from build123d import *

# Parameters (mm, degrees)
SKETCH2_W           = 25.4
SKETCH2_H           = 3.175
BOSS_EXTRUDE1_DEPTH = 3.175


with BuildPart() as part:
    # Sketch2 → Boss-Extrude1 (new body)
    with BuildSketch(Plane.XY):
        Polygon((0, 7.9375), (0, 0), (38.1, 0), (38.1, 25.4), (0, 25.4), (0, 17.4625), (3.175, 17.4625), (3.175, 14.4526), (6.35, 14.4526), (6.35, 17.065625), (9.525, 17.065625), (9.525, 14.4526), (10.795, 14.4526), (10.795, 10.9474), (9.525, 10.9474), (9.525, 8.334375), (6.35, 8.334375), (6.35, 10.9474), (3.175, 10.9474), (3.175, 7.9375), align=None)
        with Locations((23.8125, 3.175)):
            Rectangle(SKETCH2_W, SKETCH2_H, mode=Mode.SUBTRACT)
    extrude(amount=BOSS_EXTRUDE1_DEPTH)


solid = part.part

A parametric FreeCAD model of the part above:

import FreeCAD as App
import Part
import Sketcher
from FreeCAD import Vector
Q = App.Units.Quantity


def add_polygon(sketch, points):
    """Adds a closed chain of lines whose ends are joined by coincident constraints."""
    first, n = sketch.GeometryCount, len(points)
    for a, b in zip(points, points[1:] + points[:1]):
        sketch.addGeometry(Part.LineSegment(App.Vector(*a, 0), App.Vector(*b, 0)), False)
    for i in range(n):
        sketch.addConstraint(Sketcher.Constraint("Coincident", first + i, 2, first + (i + 1) % n, 1))

doc = App.newDocument("Part")
params = doc.addObject("Spreadsheet::Sheet", "Params")
for row, (alias, value) in enumerate([
    ("sketch1_width", "1 in"),
    ("sketch1_width2", "1.5 in"),
    ("sketch1_width3", "0.05 in"),
    ("sketch1_height", "0.3125 in"),
    ("sketch1_height2", "0.138 in"),
    ("pad1_length", "0.125 in"),
], start=1):
    params.set(f"A{row}", alias)
    params.set(f"B{row}", "=" + value)
    params.setAlias(f"B{row}", alias)

body = doc.addObject("PartDesign::Body", "Body")

sketch1 = body.newObject("Sketcher::SketchObject", "Sketch")
sketch1.AttachmentSupport = (doc.getObject("XY_Plane"), [""])
sketch1.MapMode = "FlatFace"
add_polygon(sketch1, [(0, 7.9), (0, 0), (38.1, 0), (38.1, 25.4), (0, 25.4), (0, 17.5), (3.2, 17.5), (3.2, 14.5), (6.3, 14.5), (6.3, 17.1), (9.5, 17.1), (9.5, 14.5), (10.8, 14.5), (10.8, 10.9), (9.5, 10.9), (9.5, 8.3), (6.3, 8.3), (6.3, 10.9), (3.2, 10.9), (3.2, 7.9)])
add_polygon(sketch1, [(36.5, 1.6), (11.1, 1.6), (11.1, 4.8), (36.5, 4.8)])
sketch1.addConstraint([
    Sketcher.Constraint("Vertical", 0),
    Sketcher.Constraint("Horizontal", 1),
    Sketcher.Constraint("Vertical", 2),
    Sketcher.Constraint("Horizontal", 3),
    Sketcher.Constraint("Vertical", 4),
    Sketcher.Constraint("Horizontal", 5),
    Sketcher.Constraint("Vertical", 6),
    Sketcher.Constraint("Horizontal", 7),
    Sketcher.Constraint("Vertical", 8),
    Sketcher.Constraint("Horizontal", 9),
    Sketcher.Constraint("Vertical", 10),
    Sketcher.Constraint("Horizontal", 11),
    Sketcher.Constraint("Vertical", 12),
    Sketcher.Constraint("Horizontal", 13),
    Sketcher.Constraint("Vertical", 14),
    Sketcher.Constraint("Horizontal", 15),
    Sketcher.Constraint("Vertical", 16),
    Sketcher.Constraint("Horizontal", 17),
    Sketcher.Constraint("Vertical", 18),
    Sketcher.Constraint("Horizontal", 19),
    Sketcher.Constraint("Horizontal", 20),
    Sketcher.Constraint("Vertical", 21),
    Sketcher.Constraint("Horizontal", 22),
    Sketcher.Constraint("Vertical", 23),
    Sketcher.Constraint("Coincident", 0, 2, -1, 1),
    Sketcher.Constraint("PointOnObject", 3, 2, -2),
    Sketcher.Constraint("Horizontal", 7, 2, 10, 2),
    Sketcher.Constraint("Horizontal", 13, 2, 16, 2),
    Sketcher.Constraint("Vertical", 10, 2, 13, 2),
    Sketcher.Constraint("Vertical", 8, 2, 15, 2),
    Sketcher.Constraint("Vertical", 6, 2, 17, 2),
    Sketcher.Constraint("Equal", 5, 7),
    Sketcher.Constraint("Equal", 7, 9),
    Sketcher.Constraint("Equal", 22, 2),
    Sketcher.Constraint("Equal", 0, 4),
    Sketcher.Constraint("Equal", 10, 14),
    Sketcher.Constraint("Equal", 6, 18),
    Sketcher.Constraint("Equal", 19, 21),
    Sketcher.Constraint("DistanceX", 20, 2, 20, 1, Q("1 in")),
    Sketcher.Constraint("DistanceX", 1, 1, 1, 2, Q("1.5 in")),
    Sketcher.Constraint("DistanceX", 11, 1, 11, 2, Q("0.05 in")),
    Sketcher.Constraint("DistanceX", 6, 2, 11, 2, Q("0.3 in")),
    Sketcher.Constraint("DistanceY", 0, 2, 0, 1, Q("0.3125 in")),
    Sketcher.Constraint("DistanceY", 12, 2, 12, 1, Q("0.138 in")),
    Sketcher.Constraint("DistanceY", 20, 2, 18, 2, Q("0.25 in")),
    Sketcher.Constraint("DistanceY", -1, 1, 8, 2, Q("0.671875 in")),
    Sketcher.Constraint("DistanceX", -1, 1, 20, 2, Q("0.4375 in")),
])
sketch1.setExpression("Constraints[62]", "Params.sketch1_width")
sketch1.setExpression("Constraints[63]", "Params.sketch1_width2")
sketch1.setExpression("Constraints[64]", "Params.sketch1_width3")
sketch1.setExpression("Constraints[66]", "Params.sketch1_height")
sketch1.setExpression("Constraints[67]", "Params.sketch1_height2")
pad1 = body.newObject("PartDesign::Pad", "Pad")
pad1.Profile = sketch1
pad1.setExpression("Length", "Params.pad1_length")

doc.recompute()
